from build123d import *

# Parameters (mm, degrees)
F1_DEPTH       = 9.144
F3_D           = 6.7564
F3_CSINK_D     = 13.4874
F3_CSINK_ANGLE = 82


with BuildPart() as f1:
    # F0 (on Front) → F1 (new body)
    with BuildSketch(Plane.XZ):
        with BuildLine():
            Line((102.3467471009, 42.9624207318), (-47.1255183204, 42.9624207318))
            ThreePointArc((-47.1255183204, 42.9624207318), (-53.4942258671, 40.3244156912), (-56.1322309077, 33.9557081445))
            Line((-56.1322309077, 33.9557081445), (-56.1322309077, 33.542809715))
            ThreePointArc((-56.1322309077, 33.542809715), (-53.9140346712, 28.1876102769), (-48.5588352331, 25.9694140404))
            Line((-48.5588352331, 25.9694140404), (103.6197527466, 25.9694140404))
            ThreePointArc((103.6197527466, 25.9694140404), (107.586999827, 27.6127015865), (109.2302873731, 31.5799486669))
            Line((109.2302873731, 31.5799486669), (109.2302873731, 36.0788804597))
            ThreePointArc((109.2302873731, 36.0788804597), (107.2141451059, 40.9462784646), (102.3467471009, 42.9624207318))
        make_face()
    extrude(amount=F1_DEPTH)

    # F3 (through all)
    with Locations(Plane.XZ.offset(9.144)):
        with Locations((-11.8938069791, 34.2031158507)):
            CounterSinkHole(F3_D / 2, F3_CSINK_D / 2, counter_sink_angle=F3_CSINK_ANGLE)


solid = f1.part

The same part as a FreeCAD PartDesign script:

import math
import FreeCAD as App
import Part
import Sketcher
from FreeCAD import Vector
Q = App.Units.Quantity

doc = App.newDocument("Part")
body = doc.addObject("PartDesign::Body", "Body")

sketch1 = body.newObject("Sketcher::SketchObject", "Sketch")
sketch1.AttachmentSupport = (doc.getObject("XZ_Plane"), [""])
sketch1.MapMode = "FlatFace"
sketch1.addGeometry([
    Part.LineSegment(Vector(102.35, 42.96, 0), Vector(-47.13, 42.96, 0)),
    Part.ArcOfCircle(Part.Circle(Vector(-47.13, 33.96, 0), Vector(0, 0, 1), 9.01), math.radians(90), math.radians(180)),
    Part.LineSegment(Vector(-56.13, 33.96, 0), Vector(-56.13, 33.54, 0)),
    Part.ArcOfCircle(Part.Circle(Vector(-48.56, 33.54, 0), Vector(0, 0, 1), 7.57), math.radians(180), math.radians(270)),
    Part.LineSegment(Vector(-48.56, 25.97, 0), Vector(103.62, 25.97, 0)),
    Part.ArcOfCircle(Part.Circle(Vector(103.62, 31.58, 0), Vector(0, 0, 1), 5.61), math.radians(-90), math.radians(0)),
    Part.LineSegment(Vector(109.23, 31.58, 0), Vector(109.23, 36.08, 0)),
    Part.ArcOfCircle(Part.Circle(Vector(102.35, 36.08, 0), Vector(0, 0, 1), 6.88), math.radians(0), math.radians(90)),
], False)
sketch1.addConstraint([
    Sketcher.Constraint("Tangent", 0, 2, 1, 1),
    Sketcher.Constraint("Tangent", 1, 2, 2, 1),
    Sketcher.Constraint("Tangent", 2, 2, 3, 1),
    Sketcher.Constraint("Tangent", 3, 2, 4, 1),
    Sketcher.Constraint("Tangent", 4, 2, 5, 1),
    Sketcher.Constraint("Tangent", 5, 2, 6, 1),
    Sketcher.Constraint("Tangent", 6, 2, 7, 1),
    Sketcher.Constraint("Tangent", 7, 2, 0, 1),
    Sketcher.Constraint("Horizontal", 0),
    Sketcher.Constraint("Vertical", 2),
    Sketcher.Constraint("Horizontal", 4),
    Sketcher.Constraint("Vertical", 6),
    Sketcher.Constraint("Radius", 7, 6.88354),
    Sketcher.Constraint("DistanceY", 2, 2, 2, 1, 0.412898),
    Sketcher.Constraint("Radius", 1, 9.006713),
    Sketcher.Constraint("Radius", 3, 7.573396),
    Sketcher.Constraint("Radius", 5, 5.610535),
    Sketcher.Constraint("DistanceX", 0, 2, 0, 1, 149.472265),
    Sketcher.Constraint("DistanceX", 1, 3, -1, 1, 47.125518),
    Sketcher.Constraint("DistanceY", -1, 1, 1, 3, 33.955708),
])
pad1 = body.newObject("PartDesign::Pad", "Pad")
pad1.Profile = sketch1
pad1.Length = Q("0.36 in")

sketch2 = body.newObject("Sketcher::SketchObject", "Sketch001")
sketch2.AttachmentSupport = (doc.getObject("XZ_Plane"), [""])
sketch2.MapMode = "FlatFace"
sketch2.AttachmentOffset = App.Placement(Vector(0, 0, 0.36 * 25.4), App.Rotation())
sketch2.addGeometry(Part.Circle(Vector(-11.9, 34.2, 0), Vector(0, 0, 1), 3.4), False)
sketch2.addConstraint([
    Sketcher.Constraint("Diameter", 0, Q("0.266 in")),
    Sketcher.Constraint("DistanceX", 0, 3, -1, 1, 11.893807),
    Sketcher.Constraint("DistanceY", -1, 1, 0, 3, 34.203116),
])
doc.recompute()
hole = body.newObject("PartDesign::Hole", "Hole")
hole.Profile = sketch2
hole.ThreadType = "None"
hole.Diameter = Q("0.266 in")
hole.DepthType = "ThroughAll"
hole.HoleCutType = "Countersink"
hole.HoleCutDiameter = Q("0.531 in")
hole.HoleCutCountersinkAngle = 82

doc.recompute()
